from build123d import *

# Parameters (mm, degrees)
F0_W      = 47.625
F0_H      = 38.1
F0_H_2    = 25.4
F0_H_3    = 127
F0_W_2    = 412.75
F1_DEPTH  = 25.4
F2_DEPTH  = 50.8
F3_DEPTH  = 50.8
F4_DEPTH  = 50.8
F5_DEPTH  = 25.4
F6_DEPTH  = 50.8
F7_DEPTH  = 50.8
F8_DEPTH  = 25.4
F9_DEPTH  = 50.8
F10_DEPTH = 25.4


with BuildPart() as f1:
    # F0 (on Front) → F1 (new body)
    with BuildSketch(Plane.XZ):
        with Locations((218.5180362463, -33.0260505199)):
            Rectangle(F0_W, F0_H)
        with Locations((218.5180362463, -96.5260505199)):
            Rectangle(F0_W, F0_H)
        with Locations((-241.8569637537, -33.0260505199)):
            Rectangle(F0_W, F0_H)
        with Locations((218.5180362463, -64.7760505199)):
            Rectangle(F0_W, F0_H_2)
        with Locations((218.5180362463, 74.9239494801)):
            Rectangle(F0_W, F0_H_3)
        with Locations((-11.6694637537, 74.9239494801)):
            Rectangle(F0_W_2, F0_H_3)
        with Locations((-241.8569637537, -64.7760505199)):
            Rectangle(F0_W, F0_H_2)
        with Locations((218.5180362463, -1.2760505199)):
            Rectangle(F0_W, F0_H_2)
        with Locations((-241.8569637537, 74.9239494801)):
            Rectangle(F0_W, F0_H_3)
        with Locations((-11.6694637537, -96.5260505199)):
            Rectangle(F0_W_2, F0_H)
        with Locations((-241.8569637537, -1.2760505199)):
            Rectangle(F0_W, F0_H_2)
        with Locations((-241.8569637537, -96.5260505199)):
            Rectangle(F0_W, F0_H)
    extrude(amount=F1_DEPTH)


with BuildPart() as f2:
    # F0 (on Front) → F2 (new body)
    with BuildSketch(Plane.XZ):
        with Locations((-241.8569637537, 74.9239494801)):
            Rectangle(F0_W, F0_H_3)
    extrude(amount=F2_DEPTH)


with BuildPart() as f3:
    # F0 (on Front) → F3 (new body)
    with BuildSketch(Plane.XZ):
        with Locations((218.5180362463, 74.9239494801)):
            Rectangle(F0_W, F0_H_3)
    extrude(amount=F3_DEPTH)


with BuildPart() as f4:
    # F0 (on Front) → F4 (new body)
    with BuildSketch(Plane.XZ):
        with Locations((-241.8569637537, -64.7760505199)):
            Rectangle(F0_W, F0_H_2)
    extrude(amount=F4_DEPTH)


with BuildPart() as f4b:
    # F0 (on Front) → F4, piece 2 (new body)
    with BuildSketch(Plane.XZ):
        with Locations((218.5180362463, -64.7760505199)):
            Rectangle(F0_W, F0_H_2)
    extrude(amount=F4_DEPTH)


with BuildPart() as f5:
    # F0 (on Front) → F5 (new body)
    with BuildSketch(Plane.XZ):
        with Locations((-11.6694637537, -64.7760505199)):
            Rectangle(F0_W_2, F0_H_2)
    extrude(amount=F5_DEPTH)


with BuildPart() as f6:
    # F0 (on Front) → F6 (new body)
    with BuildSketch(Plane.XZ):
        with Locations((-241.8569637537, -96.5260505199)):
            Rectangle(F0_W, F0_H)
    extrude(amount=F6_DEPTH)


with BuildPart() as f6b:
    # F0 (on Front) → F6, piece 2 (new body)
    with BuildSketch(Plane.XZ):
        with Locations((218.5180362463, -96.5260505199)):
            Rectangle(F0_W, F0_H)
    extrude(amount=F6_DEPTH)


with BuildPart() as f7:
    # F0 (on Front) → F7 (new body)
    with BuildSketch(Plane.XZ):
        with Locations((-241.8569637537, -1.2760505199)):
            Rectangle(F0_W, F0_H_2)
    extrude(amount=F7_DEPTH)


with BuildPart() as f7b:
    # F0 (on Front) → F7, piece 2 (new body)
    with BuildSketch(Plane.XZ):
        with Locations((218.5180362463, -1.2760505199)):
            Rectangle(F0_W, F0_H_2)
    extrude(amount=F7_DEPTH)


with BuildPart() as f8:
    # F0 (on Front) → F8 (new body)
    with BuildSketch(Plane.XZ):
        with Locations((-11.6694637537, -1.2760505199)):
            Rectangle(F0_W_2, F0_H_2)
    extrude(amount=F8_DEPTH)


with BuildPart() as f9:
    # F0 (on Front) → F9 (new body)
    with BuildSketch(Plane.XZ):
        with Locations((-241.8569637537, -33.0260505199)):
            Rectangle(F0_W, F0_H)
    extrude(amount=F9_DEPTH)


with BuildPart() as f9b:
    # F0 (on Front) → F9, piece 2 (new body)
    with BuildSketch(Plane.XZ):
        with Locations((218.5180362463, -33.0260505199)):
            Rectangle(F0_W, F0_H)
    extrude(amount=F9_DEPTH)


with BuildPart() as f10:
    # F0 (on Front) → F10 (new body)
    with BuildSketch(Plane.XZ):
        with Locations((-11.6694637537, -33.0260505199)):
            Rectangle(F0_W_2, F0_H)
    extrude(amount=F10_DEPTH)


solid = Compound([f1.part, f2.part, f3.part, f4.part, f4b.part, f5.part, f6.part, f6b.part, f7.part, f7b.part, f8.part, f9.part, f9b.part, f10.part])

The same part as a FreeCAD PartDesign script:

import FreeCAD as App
import Part
import Sketcher

V = App.Vector
Q = App.Units.Quantity

doc = App.newDocument("Part")
params = doc.addObject("Spreadsheet::Sheet", "Params")
for row, (alias, value) in enumerate([
    ("sketch1_width", "20 in"),
    ("sketch1_height", "10 in"),
    ("sketch1_height2", "3.5 in"),
    ("sketch1_width2", "16.25 in"),
    ("pad1_length", "1 in"),
    ("sketch2_height", "5 in"),
    ("sketch2_width", "1.875 in"),
    ("pad2_length", "2 in"),
    ("sketch3_height", "5 in"),
    ("sketch3_width", "1.875 in"),
    ("pad3_length", "2 in"),
    ("sketch4_height", "1 in"),
    ("sketch4_width", "1.875 in"),
    ("pad4_length", "2 in"),
    ("sketch5_height", "1 in"),
    ("sketch5_width", "1.875 in"),
    ("pad5_length", "2 in"),
    ("sketch6_height", "1 in"),
    ("sketch6_width", "16.25 in"),
    ("pad6_length", "1 in"),
    ("sketch7_height", "1.5 in"),
    ("sketch7_width", "1.875 in"),
    ("pad7_length", "2 in"),
    ("sketch8_height", "1.5 in"),
    ("sketch8_width", "1.875 in"),
    ("pad8_length", "2 in"),
    ("sketch9_height", "1 in"),
    ("sketch9_width", "1.875 in"),
    ("pad9_length", "2 in"),
    ("sketch10_height", "1 in"),
    ("sketch10_width", "1.875 in"),
    ("pad10_length", "2 in"),
    ("sketch11_height", "1 in"),
    ("sketch11_width", "16.25 in"),
    ("pad11_length", "1 in"),
    ("sketch12_height", "1.5 in"),
    ("sketch12_width", "1.875 in"),
    ("pad12_length", "2 in"),
    ("sketch13_height", "1.5 in"),
    ("sketch13_width", "1.875 in"),
    ("pad13_length", "2 in"),
    ("sketch14_height", "1.5 in"),
    ("sketch14_width", "16.25 in"),
    ("pad14_length", "1 in"),
], start=1):
    params.set(f"A{row}", alias)
    params.set(f"B{row}", "=" + value)
    params.setAlias(f"B{row}", alias)

body = doc.addObject("PartDesign::Body", "Body")

sketch1 = body.newObject("Sketcher::SketchObject", "Sketch")
sketch1.AttachmentSupport = (doc.getObject("XZ_Plane"), [""])
sketch1.MapMode = "FlatFace"
sketch1.addGeometry([
    Part.LineSegment(V(-265.669464, 138.423949, 0), V(-265.669464, -115.576051, 0)),
    Part.LineSegment(V(-265.669464, -115.576051, 0), V(242.330536, -115.576051, 0)),
    Part.LineSegment(V(242.330536, -115.576051, 0), V(242.330536, 138.423949, 0)),
    Part.LineSegment(V(242.330536, 138.423949, 0), V(-265.669464, 138.423949, 0)),
    Part.LineSegment(V(194.705536, -77.476051, 0), V(-218.044464, -77.476051, 0)),
    Part.LineSegment(V(-218.044464, -77.476051, 0), V(-218.044464, 11.423949, 0)),
    Part.LineSegment(V(-218.044464, 11.423949, 0), V(194.705536, 11.423949, 0)),
    Part.LineSegment(V(194.705536, 11.423949, 0), V(194.705536, -77.476051, 0)),
], False)
sketch1.addConstraint([
    Sketcher.Constraint("Coincident", 0, 2, 1, 1),
    Sketcher.Constraint("Coincident", 1, 2, 2, 1),
    Sketcher.Constraint("Coincident", 2, 2, 3, 1),
    Sketcher.Constraint("Coincident", 3, 2, 0, 1),
    Sketcher.Constraint("Coincident", 4, 2, 5, 1),
    Sketcher.Constraint("Coincident", 5, 2, 6, 1),
    Sketcher.Constraint("Coincident", 6, 2, 7, 1),
    Sketcher.Constraint("Coincident", 7, 2, 4, 1),
    Sketcher.Constraint("Vertical", 0),
    Sketcher.Constraint("Horizontal", 1),
    Sketcher.Constraint("Vertical", 2),
    Sketcher.Constraint("Horizontal", 3),
    Sketcher.Constraint("Horizontal", 4),
    Sketcher.Constraint("Vertical", 5),
    Sketcher.Constraint("Horizontal", 6),
    Sketcher.Constraint("Vertical", 7),
    Sketcher.Constraint("DistanceX", 1, 1, 1, 2, Q("20 in")),
    Sketcher.Constraint("DistanceY", 0, 2, 0, 1, Q("10 in")),
    Sketcher.Constraint("DistanceY", 5, 1, 5, 2, Q("3.5 in")),
    Sketcher.Constraint("DistanceY", 0, 2, 5, 2, Q("5 in")),
    Sketcher.Constraint("DistanceX", 4, 2, 4, 1, Q("16.25 in")),
    Sketcher.Constraint("DistanceX", 0, 2, 4, 2, Q("1.875 in")),
    Sketcher.Constraint("DistanceY", 0, 2, -1, 1, 115.576051),
    Sketcher.Constraint("DistanceX", 0, 2, -1, 1, 265.669464),
])
sketch1.setExpression("Constraints[16]", "Params.sketch1_width")
sketch1.setExpression("Constraints[17]", "Params.sketch1_height")
sketch1.setExpression("Constraints[18]", "Params.sketch1_height2")
sketch1.setExpression("Constraints[20]", "Params.sketch1_width2")
pad1 = body.newObject("PartDesign::Pad", "Pad")
pad1.Profile = sketch1
pad1.setExpression("Length", "Params.pad1_length")
body2 = doc.addObject("PartDesign::Body", "Body001")

sketch2 = body2.newObject("Sketcher::SketchObject", "Sketch001")
sketch2.AttachmentSupport = (doc.getObject("XZ_Plane001"), [""])
sketch2.MapMode = "FlatFace"
sketch2.addGeometry([
    Part.LineSegment(V(-265.669464, 138.423949, 0), V(-265.669464, 11.423949, 0)),
    Part.LineSegment(V(-265.669464, 11.423949, 0), V(-218.044464, 11.423949, 0)),
    Part.LineSegment(V(-218.044464, 11.423949, 0), V(-218.044464, 138.423949, 0)),
    Part.LineSegment(V(-218.044464, 138.423949, 0), V(-265.669464, 138.423949, 0)),
], False)
sketch2.addConstraint([
    Sketcher.Constraint("Coincident", 0, 2, 1, 1),
    Sketcher.Constraint("Coincident", 1, 2, 2, 1),
    Sketcher.Constraint("Coincident", 2, 2, 3, 1),
    Sketcher.Constraint("Coincident", 3, 2, 0, 1),
    Sketcher.Constraint("Vertical", 0),
    Sketcher.Constraint("Horizontal", 1),
    Sketcher.Constraint("Vertical", 2),
    Sketcher.Constraint("Horizontal", 3),
    Sketcher.Constraint("DistanceY", 0, 2, 0, 1, Q("5 in")),
    Sketcher.Constraint("DistanceX", 1, 1, 1, 2, Q("1.875 in")),
    Sketcher.Constraint("DistanceY", -1, 1, 0, 2, 11.423949),
    Sketcher.Constraint("DistanceX", 0, 2, -1, 1, 265.669464),
])
sketch2.setExpression("Constraints[8]", "Params.sketch2_height")
sketch2.setExpression("Constraints[9]", "Params.sketch2_width")
pad2 = body2.newObject("PartDesign::Pad", "Pad001")
pad2.Profile = sketch2
pad2.setExpression("Length", "Params.pad2_length")
body3 = doc.addObject("PartDesign::Body", "Body002")

sketch3 = body3.newObject("Sketcher::SketchObject", "Sketch002")
sketch3.AttachmentSupport = (doc.getObject("XZ_Plane002"), [""])
sketch3.MapMode = "FlatFace"
sketch3.addGeometry([
    Part.LineSegment(V(194.705536, 138.423949, 0), V(194.705536, 11.423949, 0)),
    Part.LineSegment(V(194.705536, 11.423949, 0), V(242.330536, 11.423949, 0)),
    Part.LineSegment(V(242.330536, 11.423949, 0), V(242.330536, 138.423949, 0)),
    Part.LineSegment(V(242.330536, 138.423949, 0), V(194.705536, 138.423949, 0)),
], False)
sketch3.addConstraint([
    Sketcher.Constraint("Coincident", 0, 2, 1, 1),
    Sketcher.Constraint("Coincident", 1, 2, 2, 1),
    Sketcher.Constraint("Coincident", 2, 2, 3, 1),
    Sketcher.Constraint("Coincident", 3, 2, 0, 1),
    Sketcher.Constraint("Vertical", 0),
    Sketcher.Constraint("Horizontal", 1),
    Sketcher.Constraint("Vertical", 2),
    Sketcher.Constraint("Horizontal", 3),
    Sketcher.Constraint("DistanceY", 0, 2, 0, 1, Q("5 in")),
    Sketcher.Constraint("DistanceX", 1, 1, 1, 2, Q("1.875 in")),
    Sketcher.Constraint("DistanceY", -1, 1, 0, 2, 11.423949),
    Sketcher.Constraint("DistanceX", -1, 1, 0, 2, 194.705536),
])
sketch3.setExpression("Constraints[8]", "Params.sketch3_height")
sketch3.setExpression("Constraints[9]", "Params.sketch3_width")
pad3 = body3.newObject("PartDesign::Pad", "Pad002")
pad3.Profile = sketch3
pad3.setExpression("Length", "Params.pad3_length")
body4 = doc.addObject("PartDesign::Body", "Body003")

sketch4 = body4.newObject("Sketcher::SketchObject", "Sketch003")
sketch4.AttachmentSupport = (doc.getObject("XZ_Plane003"), [""])
sketch4.MapMode = "FlatFace"
sketch4.addGeometry([
    Part.LineSegment(V(-265.669464, -52.076051, 0), V(-265.669464, -77.476051, 0)),
    Part.LineSegment(V(-265.669464, -77.476051, 0), V(-218.044464, -77.476051, 0)),
    Part.LineSegment(V(-218.044464, -77.476051, 0), V(-218.044464, -52.076051, 0)),
    Part.LineSegment(V(-218.044464, -52.076051, 0), V(-265.669464, -52.076051, 0)),
], False)
sketch4.addConstraint([
    Sketcher.Constraint("Coincident", 0, 2, 1, 1),
    Sketcher.Constraint("Coincident", 1, 2, 2, 1),
    Sketcher.Constraint("Coincident", 2, 2, 3, 1),
    Sketcher.Constraint("Coincident", 3, 2, 0, 1),
    Sketcher.Constraint("Vertical", 0),
    Sketcher.Constraint("Horizontal", 1),
    Sketcher.Constraint("Vertical", 2),
    Sketcher.Constraint("Horizontal", 3),
    Sketcher.Constraint("DistanceY", 0, 2, 0, 1, Q("1 in")),
    Sketcher.Constraint("DistanceX", 1, 1, 1, 2, Q("1.875 in")),
    Sketcher.Constraint("DistanceY", 0, 2, -1, 1, 77.476051),
    Sketcher.Constraint("DistanceX", 0, 2, -1, 1, 265.669464),
])
sketch4.setExpression("Constraints[8]", "Params.sketch4_height")
sketch4.setExpression("Constraints[9]", "Params.sketch4_width")
pad4 = body4.newObject("PartDesign::Pad", "Pad003")
pad4.Profile = sketch4
pad4.setExpression("Length", "Params.pad4_length")
body5 = doc.addObject("PartDesign::Body", "Body004")

sketch5 = body5.newObject("Sketcher::SketchObject", "Sketch004")
sketch5.AttachmentSupport = (doc.getObject("XZ_Plane004"), [""])
sketch5.MapMode = "FlatFace"
sketch5.addGeometry([
    Part.LineSegment(V(194.705536, -52.076051, 0), V(194.705536, -77.476051, 0)),
    Part.LineSegment(V(194.705536, -77.476051, 0), V(242.330536, -77.476051, 0)),
    Part.LineSegment(V(242.330536, -77.476051, 0), V(242.330536, -52.076051, 0)),
    Part.LineSegment(V(242.330536, -52.076051, 0), V(194.705536, -52.076051, 0)),
], False)
sketch5.addConstraint([
    Sketcher.Constraint("Coincident", 0, 2, 1, 1),
    Sketcher.Constraint("Coincident", 1, 2, 2, 1),
    Sketcher.Constraint("Coincident", 2, 2, 3, 1),
    Sketcher.Constraint("Coincident", 3, 2, 0, 1),
    Sketcher.Constraint("Vertical", 0),
    Sketcher.Constraint("Horizontal", 1),
    Sketcher.Constraint("Vertical", 2),
    Sketcher.Constraint("Horizontal", 3),
    Sketcher.Constraint("DistanceY", 0, 2, 0, 1, Q("1 in")),
    Sketcher.Constraint("DistanceX", 1, 1, 1, 2, Q("1.875 in")),
    Sketcher.Constraint("DistanceY", 0, 2, -1, 1, 77.476051),
    Sketcher.Constraint("DistanceX", -1, 1, 0, 2, 194.705536),
])
sketch5.setExpression("Constraints[8]", "Params.sketch5_height")
sketch5.setExpression("Constraints[9]", "Params.sketch5_width")
pad5 = body5.newObject("PartDesign::Pad", "Pad004")
pad5.Profile = sketch5
pad5.setExpression("Length", "Params.pad5_length")
body6 = doc.addObject("PartDesign::Body", "Body005")

sketch6 = body6.newObject("Sketcher::SketchObject", "Sketch005")
sketch6.AttachmentSupport = (doc.getObject("XZ_Plane005"), [""])
sketch6.MapMode = "FlatFace"
sketch6.addGeometry([
    Part.LineSegment(V(-218.044464, -52.076051, 0), V(-218.044464, -77.476051, 0)),
    Part.LineSegment(V(-218.044464, -77.476051, 0), V(194.705536, -77.476051, 0)),
    Part.LineSegment(V(194.705536, -77.476051, 0), V(194.705536, -52.076051, 0)),
    Part.LineSegment(V(194.705536, -52.076051, 0), V(-218.044464, -52.076051, 0)),
], False)
sketch6.addConstraint([
    Sketcher.Constraint("Coincident", 0, 2, 1, 1),
    Sketcher.Constraint("Coincident", 1, 2, 2, 1),
    Sketcher.Constraint("Coincident", 2, 2, 3, 1),
    Sketcher.Constraint("Coincident", 3, 2, 0, 1),
    Sketcher.Constraint("Vertical", 0),
    Sketcher.Constraint("Horizontal", 1),
    Sketcher.Constraint("Vertical", 2),
    Sketcher.Constraint("Horizontal", 3),
    Sketcher.Constraint("DistanceY", 0, 2, 0, 1, Q("1 in")),
    Sketcher.Constraint("DistanceX", 1, 1, 1, 2, Q("16.25 in")),
    Sketcher.Constraint("DistanceY", 0, 2, -1, 1, 77.476051),
    Sketcher.Constraint("DistanceX", 0, 2, -1, 1, 218.044464),
])
sketch6.setExpression("Constraints[8]", "Params.sketch6_height")
sketch6.setExpression("Constraints[9]", "Params.sketch6_width")
pad6 = body6.newObject("PartDesign::Pad", "Pad005")
pad6.Profile = sketch6
pad6.setExpression("Length", "Params.pad6_length")
body7 = doc.addObject("PartDesign::Body", "Body006")

sketch7 = body7.newObject("Sketcher::SketchObject", "Sketch006")
sketch7.AttachmentSupport = (doc.getObject("XZ_Plane006"), [""])
sketch7.MapMode = "FlatFace"
sketch7.addGeometry([
    Part.LineSegment(V(-265.669464, -77.476051, 0), V(-265.669464, -115.576051, 0)),
    Part.LineSegment(V(-265.669464, -115.576051, 0), V(-218.044464, -115.576051, 0)),
    Part.LineSegment(V(-218.044464, -115.576051, 0), V(-218.044464, -77.476051, 0)),
    Part.LineSegment(V(-218.044464, -77.476051, 0), V(-265.669464, -77.476051, 0)),
], False)
sketch7.addConstraint([
    Sketcher.Constraint("Coincident", 0, 2, 1, 1),
    Sketcher.Constraint("Coincident", 1, 2, 2, 1),
    Sketcher.Constraint("Coincident", 2, 2, 3, 1),
    Sketcher.Constraint("Coincident", 3, 2, 0, 1),
    Sketcher.Constraint("Vertical", 0),
    Sketcher.Constraint("Horizontal", 1),
    Sketcher.Constraint("Vertical", 2),
    Sketcher.Constraint("Horizontal", 3),
    Sketcher.Constraint("DistanceY", 0, 2, 0, 1, Q("1.5 in")),
    Sketcher.Constraint("DistanceX", 1, 1, 1, 2, Q("1.875 in")),
    Sketcher.Constraint("DistanceY", 0, 2, -1, 1, 115.576051),
    Sketcher.Constraint("DistanceX", 0, 2, -1, 1, 265.669464),
])
sketch7.setExpression("Constraints[8]", "Params.sketch7_height")
sketch7.setExpression("Constraints[9]", "Params.sketch7_width")
pad7 = body7.newObject("PartDesign::Pad", "Pad006")
pad7.Profile = sketch7
pad7.setExpression("Length", "Params.pad7_length")
body8 = doc.addObject("PartDesign::Body", "Body007")

sketch8 = body8.newObject("Sketcher::SketchObject", "Sketch007")
sketch8.AttachmentSupport = (doc.getObject("XZ_Plane007"), [""])
sketch8.MapMode = "FlatFace"
sketch8.addGeometry([
    Part.LineSegment(V(194.705536, -77.476051, 0), V(194.705536, -115.576051, 0)),
    Part.LineSegment(V(194.705536, -115.576051, 0), V(242.330536, -115.576051, 0)),
    Part.LineSegment(V(242.330536, -115.576051, 0), V(242.330536, -77.476051, 0)),
    Part.LineSegment(V(242.330536, -77.476051, 0), V(194.705536, -77.476051, 0)),
], False)
sketch8.addConstraint([
    Sketcher.Constraint("Coincident", 0, 2, 1, 1),
    Sketcher.Constraint("Coincident", 1, 2, 2, 1),
    Sketcher.Constraint("Coincident", 2, 2, 3, 1),
    Sketcher.Constraint("Coincident", 3, 2, 0, 1),
    Sketcher.Constraint("Vertical", 0),
    Sketcher.Constraint("Horizontal", 1),
    Sketcher.Constraint("Vertical", 2),
    Sketcher.Constraint("Horizontal", 3),
    Sketcher.Constraint("DistanceY", 0, 2, 0, 1, Q("1.5 in")),
    Sketcher.Constraint("DistanceX", 1, 1, 1, 2, Q("1.875 in")),
    Sketcher.Constraint("DistanceY", 0, 2, -1, 1, 115.576051),
    Sketcher.Constraint("DistanceX", -1, 1, 0, 2, 194.705536),
])
sketch8.setExpression("Constraints[8]", "Params.sketch8_height")
sketch8.setExpression("Constraints[9]", "Params.sketch8_width")
pad8 = body8.newObject("PartDesign::Pad", "Pad007")
pad8.Profile = sketch8
pad8.setExpression("Length", "Params.pad8_length")
body9 = doc.addObject("PartDesign::Body", "Body008")

sketch9 = body9.newObject("Sketcher::SketchObject", "Sketch008")
sketch9.AttachmentSupport = (doc.getObject("XZ_Plane008"), [""])
sketch9.MapMode = "FlatFace"
sketch9.addGeometry([
    Part.LineSegment(V(-265.669464, 11.423949, 0), V(-265.669464, -13.976051, 0)),
    Part.LineSegment(V(-265.669464, -13.976051, 0), V(-218.044464, -13.976051, 0)),
    Part.LineSegment(V(-218.044464, -13.976051, 0), V(-218.044464, 11.423949, 0)),
    Part.LineSegment(V(-218.044464, 11.423949, 0), V(-265.669464, 11.423949, 0)),
], False)
sketch9.addConstraint([
    Sketcher.Constraint("Coincident", 0, 2, 1, 1),
    Sketcher.Constraint("Coincident", 1, 2, 2, 1),
    Sketcher.Constraint("Coincident", 2, 2, 3, 1),
    Sketcher.Constraint("Coincident", 3, 2, 0, 1),
    Sketcher.Constraint("Vertical", 0),
    Sketcher.Constraint("Horizontal", 1),
    Sketcher.Constraint("Vertical", 2),
    Sketcher.Constraint("Horizontal", 3),
    Sketcher.Constraint("DistanceY", 0, 2, 0, 1, Q("1 in")),
    Sketcher.Constraint("DistanceX", 1, 1, 1, 2, Q("1.875 in")),
    Sketcher.Constraint("DistanceY", 0, 2, -1, 1, 13.976051),
    Sketcher.Constraint("DistanceX", 0, 2, -1, 1, 265.669464),
])
sketch9.setExpression("Constraints[8]", "Params.sketch9_height")
sketch9.setExpression("Constraints[9]", "Params.sketch9_width")
pad9 = body9.newObject("PartDesign::Pad", "Pad008")
pad9.Profile = sketch9
pad9.setExpression("Length", "Params.pad9_length")
body10 = doc.addObject("PartDesign::Body", "Body009")

sketch10 = body10.newObject("Sketcher::SketchObject", "Sketch009")
sketch10.AttachmentSupport = (doc.getObject("XZ_Plane009"), [""])
sketch10.MapMode = "FlatFace"
sketch10.addGeometry([
    Part.LineSegment(V(194.705536, 11.423949, 0), V(194.705536, -13.976051, 0)),
    Part.LineSegment(V(194.705536, -13.976051, 0), V(242.330536, -13.976051, 0)),
    Part.LineSegment(V(242.330536, -13.976051, 0), V(242.330536, 11.423949, 0)),
    Part.LineSegment(V(242.330536, 11.423949, 0), V(194.705536, 11.423949, 0)),
], False)
sketch10.addConstraint([
    Sketcher.Constraint("Coincident", 0, 2, 1, 1),
    Sketcher.Constraint("Coincident", 1, 2, 2, 1),
    Sketcher.Constraint("Coincident", 2, 2, 3, 1),
    Sketcher.Constraint("Coincident", 3, 2, 0, 1),
    Sketcher.Constraint("Vertical", 0),
    Sketcher.Constraint("Horizontal", 1),
    Sketcher.Constraint("Vertical", 2),
    Sketcher.Constraint("Horizontal", 3),
    Sketcher.Constraint("DistanceY", 0, 2, 0, 1, Q("1 in")),
    Sketcher.Constraint("DistanceX", 1, 1, 1, 2, Q("1.875 in")),
    Sketcher.Constraint("DistanceY", 0, 2, -1, 1, 13.976051),
    Sketcher.Constraint("DistanceX", -1, 1, 0, 2, 194.705536),
])
sketch10.setExpression("Constraints[8]", "Params.sketch10_height")
sketch10.setExpression("Constraints[9]", "Params.sketch10_width")
pad10 = body10.newObject("PartDesign::Pad", "Pad009")
pad10.Profile = sketch10
pad10.setExpression("Length", "Params.pad10_length")
body11 = doc.addObject("PartDesign::Body", "Body010")

sketch11 = body11.newObject("Sketcher::SketchObject", "Sketch010")
sketch11.AttachmentSupport = (doc.getObject("XZ_Plane010"), [""])
sketch11.MapMode = "FlatFace"
sketch11.addGeometry([
    Part.LineSegment(V(-218.044464, 11.423949, 0), V(-218.044464, -13.976051, 0)),
    Part.LineSegment(V(-218.044464, -13.976051, 0), V(194.705536, -13.976051, 0)),
    Part.LineSegment(V(194.705536, -13.976051, 0), V(194.705536, 11.423949, 0)),
    Part.LineSegment(V(194.705536, 11.423949, 0), V(-218.044464, 11.423949, 0)),
], False)
sketch11.addConstraint([
    Sketcher.Constraint("Coincident", 0, 2, 1, 1),
    Sketcher.Constraint("Coincident", 1, 2, 2, 1),
    Sketcher.Constraint("Coincident", 2, 2, 3, 1),
    Sketcher.Constraint("Coincident", 3, 2, 0, 1),
    Sketcher.Constraint("Vertical", 0),
    Sketcher.Constraint("Horizontal", 1),
    Sketcher.Constraint("Vertical", 2),
    Sketcher.Constraint("Horizontal", 3),
    Sketcher.Constraint("DistanceY", 0, 2, 0, 1, Q("1 in")),
    Sketcher.Constraint("DistanceX", 1, 1, 1, 2, Q("16.25 in")),
    Sketcher.Constraint("DistanceY", 0, 2, -1, 1, 13.976051),
    Sketcher.Constraint("DistanceX", 0, 2, -1, 1, 218.044464),
])
sketch11.setExpression("Constraints[8]", "Params.sketch11_height")
sketch11.setExpression("Constraints[9]", "Params.sketch11_width")
pad11 = body11.newObject("PartDesign::Pad", "Pad010")
pad11.Profile = sketch11
pad11.setExpression("Length", "Params.pad11_length")
body12 = doc.addObject("PartDesign::Body", "Body011")

sketch12 = body12.newObject("Sketcher::SketchObject", "Sketch011")
sketch12.AttachmentSupport = (doc.getObject("XZ_Plane011"), [""])
sketch12.MapMode = "FlatFace"
sketch12.addGeometry([
    Part.LineSegment(V(-265.669464, -13.976051, 0), V(-265.669464, -52.076051, 0)),
    Part.LineSegment(V(-265.669464, -52.076051, 0), V(-218.044464, -52.076051, 0)),
    Part.LineSegment(V(-218.044464, -52.076051, 0), V(-218.044464, -13.976051, 0)),
    Part.LineSegment(V(-218.044464, -13.976051, 0), V(-265.669464, -13.976051, 0)),
], False)
sketch12.addConstraint([
    Sketcher.Constraint("Coincident", 0, 2, 1, 1),
    Sketcher.Constraint("Coincident", 1, 2, 2, 1),
    Sketcher.Constraint("Coincident", 2, 2, 3, 1),
    Sketcher.Constraint("Coincident", 3, 2, 0, 1),
    Sketcher.Constraint("Vertical", 0),
    Sketcher.Constraint("Horizontal", 1),
    Sketcher.Constraint("Vertical", 2),
    Sketcher.Constraint("Horizontal", 3),
    Sketcher.Constraint("DistanceY", 0, 2, 0, 1, Q("1.5 in")),
    Sketcher.Constraint("DistanceX", 1, 1, 1, 2, Q("1.875 in")),
    Sketcher.Constraint("DistanceY", 0, 2, -1, 1, 52.076051),
    Sketcher.Constraint("DistanceX", 0, 2, -1, 1, 265.669464),
])
sketch12.setExpression("Constraints[8]", "Params.sketch12_height")
sketch12.setExpression("Constraints[9]", "Params.sketch12_width")
pad12 = body12.newObject("PartDesign::Pad", "Pad011")
pad12.Profile = sketch12
pad12.setExpression("Length", "Params.pad12_length")
body13 = doc.addObject("PartDesign::Body", "Body012")

sketch13 = body13.newObject("Sketcher::SketchObject", "Sketch012")
sketch13.AttachmentSupport = (doc.getObject("XZ_Plane012"), [""])
sketch13.MapMode = "FlatFace"
sketch13.addGeometry([
    Part.LineSegment(V(194.705536, -13.976051, 0), V(194.705536, -52.076051, 0)),
    Part.LineSegment(V(194.705536, -52.076051, 0), V(242.330536, -52.076051, 0)),
    Part.LineSegment(V(242.330536, -52.076051, 0), V(242.330536, -13.976051, 0)),
    Part.LineSegment(V(242.330536, -13.976051, 0), V(194.705536, -13.976051, 0)),
], False)
sketch13.addConstraint([
    Sketcher.Constraint("Coincident", 0, 2, 1, 1),
    Sketcher.Constraint("Coincident", 1, 2, 2, 1),
    Sketcher.Constraint("Coincident", 2, 2, 3, 1),
    Sketcher.Constraint("Coincident", 3, 2, 0, 1),
    Sketcher.Constraint("Vertical", 0),
    Sketcher.Constraint("Horizontal", 1),
    Sketcher.Constraint("Vertical", 2),
    Sketcher.Constraint("Horizontal", 3),
    Sketcher.Constraint("DistanceY", 0, 2, 0, 1, Q("1.5 in")),
    Sketcher.Constraint("DistanceX", 1, 1, 1, 2, Q("1.875 in")),
    Sketcher.Constraint("DistanceY", 0, 2, -1, 1, 52.076051),
    Sketcher.Constraint("DistanceX", -1, 1, 0, 2, 194.705536),
])
sketch13.setExpression("Constraints[8]", "Params.sketch13_height")
sketch13.setExpression("Constraints[9]", "Params.sketch13_width")
pad13 = body13.newObject("PartDesign::Pad", "Pad012")
pad13.Profile = sketch13
pad13.setExpression("Length", "Params.pad13_length")
body14 = doc.addObject("PartDesign::Body", "Body013")

sketch14 = body14.newObject("Sketcher::SketchObject", "Sketch013")
sketch14.AttachmentSupport = (doc.getObject("XZ_Plane013"), [""])
sketch14.MapMode = "FlatFace"
sketch14.addGeometry([
    Part.LineSegment(V(-218.044464, -13.976051, 0), V(-218.044464, -52.076051, 0)),
    Part.LineSegment(V(-218.044464, -52.076051, 0), V(194.705536, -52.076051, 0)),
    Part.LineSegment(V(194.705536, -52.076051, 0), V(194.705536, -13.976051, 0)),
    Part.LineSegment(V(194.705536, -13.976051, 0), V(-218.044464, -13.976051, 0)),
], False)
sketch14.addConstraint([
    Sketcher.Constraint("Coincident", 0, 2, 1, 1),
    Sketcher.Constraint("Coincident", 1, 2, 2, 1),
    Sketcher.Constraint("Coincident", 2, 2, 3, 1),
    Sketcher.Constraint("Coincident", 3, 2, 0, 1),
    Sketcher.Constraint("Vertical", 0),
    Sketcher.Constraint("Horizontal", 1),
    Sketcher.Constraint("Vertical", 2),
    Sketcher.Constraint("Horizontal", 3),
    Sketcher.Constraint("DistanceY", 0, 2, 0, 1, Q("1.5 in")),
    Sketcher.Constraint("DistanceX", 1, 1, 1, 2, Q("16.25 in")),
    Sketcher.Constraint("DistanceY", 0, 2, -1, 1, 52.076051),
    Sketcher.Constraint("DistanceX", 0, 2, -1, 1, 218.044464),
])
sketch14.setExpression("Constraints[8]", "Params.sketch14_height")
sketch14.setExpression("Constraints[9]", "Params.sketch14_width")
pad14 = body14.newObject("PartDesign::Pad", "Pad013")
pad14.Profile = sketch14
pad14.setExpression("Length", "Params.pad14_length")

doc.recompute()
